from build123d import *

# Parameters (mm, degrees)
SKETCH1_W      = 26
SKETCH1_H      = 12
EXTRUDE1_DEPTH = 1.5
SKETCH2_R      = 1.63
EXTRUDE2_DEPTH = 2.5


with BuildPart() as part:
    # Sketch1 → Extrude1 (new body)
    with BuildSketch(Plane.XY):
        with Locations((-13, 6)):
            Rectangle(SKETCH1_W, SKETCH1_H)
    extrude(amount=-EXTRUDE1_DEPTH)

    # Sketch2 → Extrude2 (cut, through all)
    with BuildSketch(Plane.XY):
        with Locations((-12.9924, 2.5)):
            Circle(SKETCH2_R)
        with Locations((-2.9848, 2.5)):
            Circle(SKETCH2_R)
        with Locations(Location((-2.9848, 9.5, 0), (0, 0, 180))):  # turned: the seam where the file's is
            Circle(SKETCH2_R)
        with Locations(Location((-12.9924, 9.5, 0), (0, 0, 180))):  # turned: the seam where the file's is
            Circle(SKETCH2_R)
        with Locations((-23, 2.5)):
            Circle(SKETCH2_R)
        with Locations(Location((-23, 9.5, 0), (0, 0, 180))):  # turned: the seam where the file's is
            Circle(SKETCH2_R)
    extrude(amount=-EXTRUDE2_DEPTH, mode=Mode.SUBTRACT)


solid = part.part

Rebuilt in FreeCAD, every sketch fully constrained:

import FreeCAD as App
import Part
import Sketcher
from FreeCAD import Vector


def add_polygon(sketch, points):
    """Adds a closed chain of lines whose ends are joined by coincident constraints."""
    first, n = sketch.GeometryCount, len(points)
    for a, b in zip(points, points[1:] + points[:1]):
        sketch.addGeometry(Part.LineSegment(App.Vector(*a, 0), App.Vector(*b, 0)), False)
    for i in range(n):
        sketch.addConstraint(Sketcher.Constraint("Coincident", first + i, 2, first + (i + 1) % n, 1))

doc = App.newDocument("Part")
params = doc.addObject("Spreadsheet::Sheet", "Params")
for row, (alias, value) in enumerate([
    ("sketch1_width", "26 mm"),
    ("sketch1_height", "12 mm"),
    ("pad1_length", "1.5 mm"),
    ("sketch2_diameter", "3.26 mm"),
], start=1):
    params.set(f"A{row}", alias)
    params.set(f"B{row}", "=" + value)
    params.setAlias(f"B{row}", alias)

body = doc.addObject("PartDesign::Body", "Body")

# Sketch on XY plane
sketch1 = doc.addObject("Sketcher::SketchObject", "Sketch")
body.addObject(sketch1)
sketch1.AttachmentSupport = (doc.XY_Plane, [""])
sketch1.MapMode = "FlatFace"
add_polygon(sketch1, [(-26, 12), (-26, 0), (0, 0), (0, 12)])  # lines 0-3
sketch1.addConstraint([
    Sketcher.Constraint("Vertical", 0),
    Sketcher.Constraint("Horizontal", 1),
    Sketcher.Constraint("Vertical", 2),
    Sketcher.Constraint("Horizontal", 3),
    Sketcher.Constraint("Coincident", 1, 2, -1, 1),
    Sketcher.Constraint("DistanceX", 1, 1, 1, 2, 26.0),
    Sketcher.Constraint("DistanceY", 0, 2, 0, 1, 12.0),
])
sketch1.setExpression("Constraints[9]", "Params.sketch1_width")
sketch1.setExpression("Constraints[10]", "Params.sketch1_height")
pad1 = doc.addObject("PartDesign::Pad", "Pad")
body.addObject(pad1)
pad1.Profile = sketch1
pad1.setExpression("Length", "Params.pad1_length")
pad1.Reversed = True

# Sketch on XY plane
sketch2 = doc.addObject("Sketcher::SketchObject", "Sketch001")
body.addObject(sketch2)
sketch2.AttachmentSupport = (doc.XY_Plane, [""])
sketch2.MapMode = "FlatFace"
sketch2.addGeometry([
    Part.Circle(Vector(-13, 2.5, 0), Vector(0, 0, 1), 1.6),  # 0
    Part.Circle(Vector(-3, 2.5, 0), Vector(0, 0, 1), 1.6),  # 1
    Part.Circle(Vector(-3, 9.5, 0), Vector(0, 0, 1), 1.6),  # 2
    Part.Circle(Vector(-13, 9.5, 0), Vector(0, 0, 1), 1.6),  # 3
    Part.Circle(Vector(-23, 2.5, 0), Vector(0, 0, 1), 1.6),  # 4
    Part.Circle(Vector(-23, 9.5, 0), Vector(0, 0, 1), 1.6),  # 5
], False)
sketch2.addConstraint([
    Sketcher.Constraint("Equal", 0, 1),
    Sketcher.Constraint("Equal", 1, 2),
    Sketcher.Constraint("Equal", 2, 3),
    Sketcher.Constraint("Equal", 3, 4),
    Sketcher.Constraint("Equal", 4, 5),
    Sketcher.Constraint("Horizontal", 0, 3, 1, 3),
    Sketcher.Constraint("Horizontal", 2, 3, 3, 3),
    Sketcher.Constraint("Horizontal", 1, 3, 4, 3),
    Sketcher.Constraint("Horizontal", 3, 3, 5, 3),
    Sketcher.Constraint("Vertical", 1, 3, 2, 3),
    Sketcher.Constraint("Vertical", 0, 3, 3, 3),
    Sketcher.Constraint("Vertical", 4, 3, 5, 3),
    Sketcher.Constraint("Diameter", 0, 3.26),
    Sketcher.Constraint("DistanceX", 4, 3, -1, 1, 23.0),
    Sketcher.Constraint("DistanceY", 1, 3, 2, 3, 7.0),
    Sketcher.Constraint("DistanceY", -1, 1, 0, 3, 2.5),
    Sketcher.Constraint("DistanceX", 0, 3, -1, 1, 12.9924),
    Sketcher.Constraint("DistanceX", 1, 3, -1, 1, 2.9848),
])
sketch2.setExpression("Constraints[12]", "Params.sketch2_diameter")
pocket1 = doc.addObject("PartDesign::Pocket", "Pocket")
body.addObject(pocket1)
pocket1.Profile = sketch2
pocket1.Type = "ThroughAll"

doc.recompute()
